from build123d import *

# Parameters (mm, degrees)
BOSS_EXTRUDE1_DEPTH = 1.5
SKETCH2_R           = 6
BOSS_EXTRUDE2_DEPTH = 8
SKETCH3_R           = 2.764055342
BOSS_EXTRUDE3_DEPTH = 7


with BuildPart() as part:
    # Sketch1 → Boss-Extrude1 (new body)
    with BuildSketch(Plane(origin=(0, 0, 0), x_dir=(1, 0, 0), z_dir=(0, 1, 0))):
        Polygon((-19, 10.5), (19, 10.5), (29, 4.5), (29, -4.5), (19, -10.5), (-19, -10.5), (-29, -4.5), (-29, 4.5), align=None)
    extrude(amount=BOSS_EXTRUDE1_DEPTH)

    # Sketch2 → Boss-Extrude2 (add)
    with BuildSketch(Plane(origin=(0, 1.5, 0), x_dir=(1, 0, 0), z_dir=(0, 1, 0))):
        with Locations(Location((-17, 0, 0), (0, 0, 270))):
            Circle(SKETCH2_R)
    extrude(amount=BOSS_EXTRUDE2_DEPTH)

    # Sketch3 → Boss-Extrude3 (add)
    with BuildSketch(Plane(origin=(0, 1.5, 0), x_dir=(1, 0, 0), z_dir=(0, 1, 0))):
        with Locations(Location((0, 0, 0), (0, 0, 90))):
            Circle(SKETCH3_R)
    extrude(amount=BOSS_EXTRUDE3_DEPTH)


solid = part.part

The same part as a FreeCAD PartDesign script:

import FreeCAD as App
import Part
import Sketcher

V = App.Vector


def add_polygon(sketch, points):
    """Adds a closed chain of lines whose ends are joined by coincident constraints."""
    first, n = sketch.GeometryCount, len(points)
    for a, b in zip(points, points[1:] + points[:1]):
        sketch.addGeometry(Part.LineSegment(App.Vector(*a, 0), App.Vector(*b, 0)), False)
    for i in range(n):
        sketch.addConstraint(Sketcher.Constraint("Coincident", first + i, 2, first + (i + 1) % n, 1))

doc = App.newDocument("Part")
body = doc.addObject("PartDesign::Body", "Body")

# Sketch on XZ plane
sketch1 = doc.addObject("Sketcher::SketchObject", "Sketch")
body.addObject(sketch1)
sketch1.AttachmentSupport = (doc.XZ_Plane, [""])
sketch1.MapMode = "FlatFace"
add_polygon(sketch1, [(19, -10), (-19, -10), (-29, -4), (-29, 4), (-19, 10), (19, 10), (29, 4), (29, -4)])  # lines 0-7
sketch1.addConstraint(Sketcher.Constraint("Horizontal", 0))
sketch1.addConstraint(Sketcher.Constraint("Vertical", 2))
sketch1.addConstraint(Sketcher.Constraint("Horizontal", 4))
sketch1.addConstraint(Sketcher.Constraint("Vertical", 6))
sketch1.addConstraint(Sketcher.Constraint("Symmetric", 0, 2, 4, 2, -1, 1))
sketch1.addConstraint(Sketcher.Constraint("Symmetric", 1, 2, 5, 2, -1, 1))
sketch1.addConstraint(Sketcher.Constraint("Parallel", 3, 7))
sketch1.addConstraint(Sketcher.Constraint("Horizontal", 2, 2, 5, 2))
sketch1.addConstraint(Sketcher.Constraint("Horizontal", 1, 2, 6, 2))
sketch1.addConstraint(Sketcher.Constraint("Vertical", 0, 2, 3, 2))
sketch1.addConstraint(Sketcher.Constraint("DistanceX", 0, 2, 0, 1, 38.0))
sketch1.addConstraint(Sketcher.Constraint("DistanceY", 2, 1, 2, 2, 9.0))
sketch1.addConstraint(Sketcher.Constraint("DistanceX", 1, 2, -1, 1, 29.0))
sketch1.addConstraint(Sketcher.Constraint("DistanceY", 0, 2, 1, 2, 6.0))
pad1 = doc.addObject("PartDesign::Pad", "Pad")
body.addObject(pad1)
pad1.Profile = sketch1
pad1.Length = 1.5
pad1.Reversed = True

# Sketch on XZ plane
sketch2 = doc.addObject("Sketcher::SketchObject", "Sketch001")
body.addObject(sketch2)
sketch2.AttachmentSupport = (doc.XZ_Plane, [""])
sketch2.MapMode = "FlatFace"
sketch2.AttachmentOffset = App.Placement(V(0, 0, -1.5), App.Rotation())
sketch2.addGeometry(Part.Circle(V(-17, 0, 0), V(0, 0, 1), 6), False)
sketch2.addConstraint(Sketcher.Constraint("PointOnObject", 0, 3, -1))
sketch2.addConstraint(Sketcher.Constraint("Diameter", 0, 12.0))
sketch2.addConstraint(Sketcher.Constraint("DistanceX", 0, 3, -1, 1, 17.0))
pad2 = doc.addObject("PartDesign::Pad", "Pad001")
body.addObject(pad2)
pad2.Profile = sketch2
pad2.Length = 8
pad2.Reversed = True

# Sketch on XZ plane
sketch3 = doc.addObject("Sketcher::SketchObject", "Sketch002")
body.addObject(sketch3)
sketch3.AttachmentSupport = (doc.XZ_Plane, [""])
sketch3.MapMode = "FlatFace"
sketch3.AttachmentOffset = App.Placement(V(0, 0, -1.5), App.Rotation())
sketch3.addGeometry(Part.Circle(V(0, 0, 0), V(0, 0, 1), 2.8), False)
sketch3.addConstraint(Sketcher.Constraint("Coincident", 0, 3, -1, 1))
sketch3.addConstraint(Sketcher.Constraint("Diameter", 0, 5.528111))
pad3 = doc.addObject("PartDesign::Pad", "Pad002")
body.addObject(pad3)
pad3.Profile = sketch3
pad3.Length = 7
pad3.Reversed = True

doc.recompute()
